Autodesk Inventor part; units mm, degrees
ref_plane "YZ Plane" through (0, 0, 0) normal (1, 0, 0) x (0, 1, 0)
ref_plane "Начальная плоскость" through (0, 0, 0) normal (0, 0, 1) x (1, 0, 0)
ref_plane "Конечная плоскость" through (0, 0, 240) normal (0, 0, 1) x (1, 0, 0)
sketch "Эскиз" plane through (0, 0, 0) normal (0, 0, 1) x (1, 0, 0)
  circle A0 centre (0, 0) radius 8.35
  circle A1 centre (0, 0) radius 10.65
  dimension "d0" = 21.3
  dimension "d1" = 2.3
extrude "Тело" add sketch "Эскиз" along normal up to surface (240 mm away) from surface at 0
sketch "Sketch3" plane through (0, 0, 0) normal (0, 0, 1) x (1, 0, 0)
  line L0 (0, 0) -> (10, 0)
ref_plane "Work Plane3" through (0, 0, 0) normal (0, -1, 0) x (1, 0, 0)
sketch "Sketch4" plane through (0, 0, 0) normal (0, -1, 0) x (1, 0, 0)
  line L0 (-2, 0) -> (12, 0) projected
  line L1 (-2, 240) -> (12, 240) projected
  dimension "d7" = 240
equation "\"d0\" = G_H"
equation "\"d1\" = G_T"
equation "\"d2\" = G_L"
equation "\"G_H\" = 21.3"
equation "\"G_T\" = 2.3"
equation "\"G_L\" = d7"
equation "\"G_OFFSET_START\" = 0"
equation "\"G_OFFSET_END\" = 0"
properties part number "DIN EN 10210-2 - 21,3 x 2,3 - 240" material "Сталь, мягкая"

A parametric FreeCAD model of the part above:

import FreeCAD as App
import Part
import Sketcher

V = App.Vector

doc = App.newDocument("Part")
params = doc.addObject("Spreadsheet::Sheet", "Params")
for row, (alias, value) in enumerate([
    ("sketch1_diameter", "21.3 mm"),
    ("sketch1_diameter2", "16.7 mm"),
    ("pad1_length", "240 mm"),
], start=1):
    params.set(f"A{row}", alias)
    params.set(f"B{row}", "=" + value)
    params.setAlias(f"B{row}", alias)

body = doc.addObject("PartDesign::Body", "Body")

sketch1 = body.newObject("Sketcher::SketchObject", "Sketch")
sketch1.AttachmentSupport = (doc.getObject("XY_Plane"), [""])
sketch1.MapMode = "FlatFace"
sketch1.addGeometry(Part.Circle(V(0, 0, 0), V(0, 0, 1), 11), False)
sketch1.addGeometry(Part.Circle(V(0, 0, 0), V(0, 0, 1), 8), False)
sketch1.addConstraint(Sketcher.Constraint("Coincident", 0, 3, -1, 1))
sketch1.addConstraint(Sketcher.Constraint("Coincident", 1, 3, -1, 1))
sketch1.addConstraint(Sketcher.Constraint("Diameter", 0, 21.3))
sketch1.addConstraint(Sketcher.Constraint("Diameter", 1, 16.7))
sketch1.setExpression("Constraints[2]", "Params.sketch1_diameter")
sketch1.setExpression("Constraints[3]", "Params.sketch1_diameter2")
pad1 = body.newObject("PartDesign::Pad", "Pad")
pad1.Profile = sketch1
pad1.setExpression("Length", "Params.pad1_length")

doc.recompute()
